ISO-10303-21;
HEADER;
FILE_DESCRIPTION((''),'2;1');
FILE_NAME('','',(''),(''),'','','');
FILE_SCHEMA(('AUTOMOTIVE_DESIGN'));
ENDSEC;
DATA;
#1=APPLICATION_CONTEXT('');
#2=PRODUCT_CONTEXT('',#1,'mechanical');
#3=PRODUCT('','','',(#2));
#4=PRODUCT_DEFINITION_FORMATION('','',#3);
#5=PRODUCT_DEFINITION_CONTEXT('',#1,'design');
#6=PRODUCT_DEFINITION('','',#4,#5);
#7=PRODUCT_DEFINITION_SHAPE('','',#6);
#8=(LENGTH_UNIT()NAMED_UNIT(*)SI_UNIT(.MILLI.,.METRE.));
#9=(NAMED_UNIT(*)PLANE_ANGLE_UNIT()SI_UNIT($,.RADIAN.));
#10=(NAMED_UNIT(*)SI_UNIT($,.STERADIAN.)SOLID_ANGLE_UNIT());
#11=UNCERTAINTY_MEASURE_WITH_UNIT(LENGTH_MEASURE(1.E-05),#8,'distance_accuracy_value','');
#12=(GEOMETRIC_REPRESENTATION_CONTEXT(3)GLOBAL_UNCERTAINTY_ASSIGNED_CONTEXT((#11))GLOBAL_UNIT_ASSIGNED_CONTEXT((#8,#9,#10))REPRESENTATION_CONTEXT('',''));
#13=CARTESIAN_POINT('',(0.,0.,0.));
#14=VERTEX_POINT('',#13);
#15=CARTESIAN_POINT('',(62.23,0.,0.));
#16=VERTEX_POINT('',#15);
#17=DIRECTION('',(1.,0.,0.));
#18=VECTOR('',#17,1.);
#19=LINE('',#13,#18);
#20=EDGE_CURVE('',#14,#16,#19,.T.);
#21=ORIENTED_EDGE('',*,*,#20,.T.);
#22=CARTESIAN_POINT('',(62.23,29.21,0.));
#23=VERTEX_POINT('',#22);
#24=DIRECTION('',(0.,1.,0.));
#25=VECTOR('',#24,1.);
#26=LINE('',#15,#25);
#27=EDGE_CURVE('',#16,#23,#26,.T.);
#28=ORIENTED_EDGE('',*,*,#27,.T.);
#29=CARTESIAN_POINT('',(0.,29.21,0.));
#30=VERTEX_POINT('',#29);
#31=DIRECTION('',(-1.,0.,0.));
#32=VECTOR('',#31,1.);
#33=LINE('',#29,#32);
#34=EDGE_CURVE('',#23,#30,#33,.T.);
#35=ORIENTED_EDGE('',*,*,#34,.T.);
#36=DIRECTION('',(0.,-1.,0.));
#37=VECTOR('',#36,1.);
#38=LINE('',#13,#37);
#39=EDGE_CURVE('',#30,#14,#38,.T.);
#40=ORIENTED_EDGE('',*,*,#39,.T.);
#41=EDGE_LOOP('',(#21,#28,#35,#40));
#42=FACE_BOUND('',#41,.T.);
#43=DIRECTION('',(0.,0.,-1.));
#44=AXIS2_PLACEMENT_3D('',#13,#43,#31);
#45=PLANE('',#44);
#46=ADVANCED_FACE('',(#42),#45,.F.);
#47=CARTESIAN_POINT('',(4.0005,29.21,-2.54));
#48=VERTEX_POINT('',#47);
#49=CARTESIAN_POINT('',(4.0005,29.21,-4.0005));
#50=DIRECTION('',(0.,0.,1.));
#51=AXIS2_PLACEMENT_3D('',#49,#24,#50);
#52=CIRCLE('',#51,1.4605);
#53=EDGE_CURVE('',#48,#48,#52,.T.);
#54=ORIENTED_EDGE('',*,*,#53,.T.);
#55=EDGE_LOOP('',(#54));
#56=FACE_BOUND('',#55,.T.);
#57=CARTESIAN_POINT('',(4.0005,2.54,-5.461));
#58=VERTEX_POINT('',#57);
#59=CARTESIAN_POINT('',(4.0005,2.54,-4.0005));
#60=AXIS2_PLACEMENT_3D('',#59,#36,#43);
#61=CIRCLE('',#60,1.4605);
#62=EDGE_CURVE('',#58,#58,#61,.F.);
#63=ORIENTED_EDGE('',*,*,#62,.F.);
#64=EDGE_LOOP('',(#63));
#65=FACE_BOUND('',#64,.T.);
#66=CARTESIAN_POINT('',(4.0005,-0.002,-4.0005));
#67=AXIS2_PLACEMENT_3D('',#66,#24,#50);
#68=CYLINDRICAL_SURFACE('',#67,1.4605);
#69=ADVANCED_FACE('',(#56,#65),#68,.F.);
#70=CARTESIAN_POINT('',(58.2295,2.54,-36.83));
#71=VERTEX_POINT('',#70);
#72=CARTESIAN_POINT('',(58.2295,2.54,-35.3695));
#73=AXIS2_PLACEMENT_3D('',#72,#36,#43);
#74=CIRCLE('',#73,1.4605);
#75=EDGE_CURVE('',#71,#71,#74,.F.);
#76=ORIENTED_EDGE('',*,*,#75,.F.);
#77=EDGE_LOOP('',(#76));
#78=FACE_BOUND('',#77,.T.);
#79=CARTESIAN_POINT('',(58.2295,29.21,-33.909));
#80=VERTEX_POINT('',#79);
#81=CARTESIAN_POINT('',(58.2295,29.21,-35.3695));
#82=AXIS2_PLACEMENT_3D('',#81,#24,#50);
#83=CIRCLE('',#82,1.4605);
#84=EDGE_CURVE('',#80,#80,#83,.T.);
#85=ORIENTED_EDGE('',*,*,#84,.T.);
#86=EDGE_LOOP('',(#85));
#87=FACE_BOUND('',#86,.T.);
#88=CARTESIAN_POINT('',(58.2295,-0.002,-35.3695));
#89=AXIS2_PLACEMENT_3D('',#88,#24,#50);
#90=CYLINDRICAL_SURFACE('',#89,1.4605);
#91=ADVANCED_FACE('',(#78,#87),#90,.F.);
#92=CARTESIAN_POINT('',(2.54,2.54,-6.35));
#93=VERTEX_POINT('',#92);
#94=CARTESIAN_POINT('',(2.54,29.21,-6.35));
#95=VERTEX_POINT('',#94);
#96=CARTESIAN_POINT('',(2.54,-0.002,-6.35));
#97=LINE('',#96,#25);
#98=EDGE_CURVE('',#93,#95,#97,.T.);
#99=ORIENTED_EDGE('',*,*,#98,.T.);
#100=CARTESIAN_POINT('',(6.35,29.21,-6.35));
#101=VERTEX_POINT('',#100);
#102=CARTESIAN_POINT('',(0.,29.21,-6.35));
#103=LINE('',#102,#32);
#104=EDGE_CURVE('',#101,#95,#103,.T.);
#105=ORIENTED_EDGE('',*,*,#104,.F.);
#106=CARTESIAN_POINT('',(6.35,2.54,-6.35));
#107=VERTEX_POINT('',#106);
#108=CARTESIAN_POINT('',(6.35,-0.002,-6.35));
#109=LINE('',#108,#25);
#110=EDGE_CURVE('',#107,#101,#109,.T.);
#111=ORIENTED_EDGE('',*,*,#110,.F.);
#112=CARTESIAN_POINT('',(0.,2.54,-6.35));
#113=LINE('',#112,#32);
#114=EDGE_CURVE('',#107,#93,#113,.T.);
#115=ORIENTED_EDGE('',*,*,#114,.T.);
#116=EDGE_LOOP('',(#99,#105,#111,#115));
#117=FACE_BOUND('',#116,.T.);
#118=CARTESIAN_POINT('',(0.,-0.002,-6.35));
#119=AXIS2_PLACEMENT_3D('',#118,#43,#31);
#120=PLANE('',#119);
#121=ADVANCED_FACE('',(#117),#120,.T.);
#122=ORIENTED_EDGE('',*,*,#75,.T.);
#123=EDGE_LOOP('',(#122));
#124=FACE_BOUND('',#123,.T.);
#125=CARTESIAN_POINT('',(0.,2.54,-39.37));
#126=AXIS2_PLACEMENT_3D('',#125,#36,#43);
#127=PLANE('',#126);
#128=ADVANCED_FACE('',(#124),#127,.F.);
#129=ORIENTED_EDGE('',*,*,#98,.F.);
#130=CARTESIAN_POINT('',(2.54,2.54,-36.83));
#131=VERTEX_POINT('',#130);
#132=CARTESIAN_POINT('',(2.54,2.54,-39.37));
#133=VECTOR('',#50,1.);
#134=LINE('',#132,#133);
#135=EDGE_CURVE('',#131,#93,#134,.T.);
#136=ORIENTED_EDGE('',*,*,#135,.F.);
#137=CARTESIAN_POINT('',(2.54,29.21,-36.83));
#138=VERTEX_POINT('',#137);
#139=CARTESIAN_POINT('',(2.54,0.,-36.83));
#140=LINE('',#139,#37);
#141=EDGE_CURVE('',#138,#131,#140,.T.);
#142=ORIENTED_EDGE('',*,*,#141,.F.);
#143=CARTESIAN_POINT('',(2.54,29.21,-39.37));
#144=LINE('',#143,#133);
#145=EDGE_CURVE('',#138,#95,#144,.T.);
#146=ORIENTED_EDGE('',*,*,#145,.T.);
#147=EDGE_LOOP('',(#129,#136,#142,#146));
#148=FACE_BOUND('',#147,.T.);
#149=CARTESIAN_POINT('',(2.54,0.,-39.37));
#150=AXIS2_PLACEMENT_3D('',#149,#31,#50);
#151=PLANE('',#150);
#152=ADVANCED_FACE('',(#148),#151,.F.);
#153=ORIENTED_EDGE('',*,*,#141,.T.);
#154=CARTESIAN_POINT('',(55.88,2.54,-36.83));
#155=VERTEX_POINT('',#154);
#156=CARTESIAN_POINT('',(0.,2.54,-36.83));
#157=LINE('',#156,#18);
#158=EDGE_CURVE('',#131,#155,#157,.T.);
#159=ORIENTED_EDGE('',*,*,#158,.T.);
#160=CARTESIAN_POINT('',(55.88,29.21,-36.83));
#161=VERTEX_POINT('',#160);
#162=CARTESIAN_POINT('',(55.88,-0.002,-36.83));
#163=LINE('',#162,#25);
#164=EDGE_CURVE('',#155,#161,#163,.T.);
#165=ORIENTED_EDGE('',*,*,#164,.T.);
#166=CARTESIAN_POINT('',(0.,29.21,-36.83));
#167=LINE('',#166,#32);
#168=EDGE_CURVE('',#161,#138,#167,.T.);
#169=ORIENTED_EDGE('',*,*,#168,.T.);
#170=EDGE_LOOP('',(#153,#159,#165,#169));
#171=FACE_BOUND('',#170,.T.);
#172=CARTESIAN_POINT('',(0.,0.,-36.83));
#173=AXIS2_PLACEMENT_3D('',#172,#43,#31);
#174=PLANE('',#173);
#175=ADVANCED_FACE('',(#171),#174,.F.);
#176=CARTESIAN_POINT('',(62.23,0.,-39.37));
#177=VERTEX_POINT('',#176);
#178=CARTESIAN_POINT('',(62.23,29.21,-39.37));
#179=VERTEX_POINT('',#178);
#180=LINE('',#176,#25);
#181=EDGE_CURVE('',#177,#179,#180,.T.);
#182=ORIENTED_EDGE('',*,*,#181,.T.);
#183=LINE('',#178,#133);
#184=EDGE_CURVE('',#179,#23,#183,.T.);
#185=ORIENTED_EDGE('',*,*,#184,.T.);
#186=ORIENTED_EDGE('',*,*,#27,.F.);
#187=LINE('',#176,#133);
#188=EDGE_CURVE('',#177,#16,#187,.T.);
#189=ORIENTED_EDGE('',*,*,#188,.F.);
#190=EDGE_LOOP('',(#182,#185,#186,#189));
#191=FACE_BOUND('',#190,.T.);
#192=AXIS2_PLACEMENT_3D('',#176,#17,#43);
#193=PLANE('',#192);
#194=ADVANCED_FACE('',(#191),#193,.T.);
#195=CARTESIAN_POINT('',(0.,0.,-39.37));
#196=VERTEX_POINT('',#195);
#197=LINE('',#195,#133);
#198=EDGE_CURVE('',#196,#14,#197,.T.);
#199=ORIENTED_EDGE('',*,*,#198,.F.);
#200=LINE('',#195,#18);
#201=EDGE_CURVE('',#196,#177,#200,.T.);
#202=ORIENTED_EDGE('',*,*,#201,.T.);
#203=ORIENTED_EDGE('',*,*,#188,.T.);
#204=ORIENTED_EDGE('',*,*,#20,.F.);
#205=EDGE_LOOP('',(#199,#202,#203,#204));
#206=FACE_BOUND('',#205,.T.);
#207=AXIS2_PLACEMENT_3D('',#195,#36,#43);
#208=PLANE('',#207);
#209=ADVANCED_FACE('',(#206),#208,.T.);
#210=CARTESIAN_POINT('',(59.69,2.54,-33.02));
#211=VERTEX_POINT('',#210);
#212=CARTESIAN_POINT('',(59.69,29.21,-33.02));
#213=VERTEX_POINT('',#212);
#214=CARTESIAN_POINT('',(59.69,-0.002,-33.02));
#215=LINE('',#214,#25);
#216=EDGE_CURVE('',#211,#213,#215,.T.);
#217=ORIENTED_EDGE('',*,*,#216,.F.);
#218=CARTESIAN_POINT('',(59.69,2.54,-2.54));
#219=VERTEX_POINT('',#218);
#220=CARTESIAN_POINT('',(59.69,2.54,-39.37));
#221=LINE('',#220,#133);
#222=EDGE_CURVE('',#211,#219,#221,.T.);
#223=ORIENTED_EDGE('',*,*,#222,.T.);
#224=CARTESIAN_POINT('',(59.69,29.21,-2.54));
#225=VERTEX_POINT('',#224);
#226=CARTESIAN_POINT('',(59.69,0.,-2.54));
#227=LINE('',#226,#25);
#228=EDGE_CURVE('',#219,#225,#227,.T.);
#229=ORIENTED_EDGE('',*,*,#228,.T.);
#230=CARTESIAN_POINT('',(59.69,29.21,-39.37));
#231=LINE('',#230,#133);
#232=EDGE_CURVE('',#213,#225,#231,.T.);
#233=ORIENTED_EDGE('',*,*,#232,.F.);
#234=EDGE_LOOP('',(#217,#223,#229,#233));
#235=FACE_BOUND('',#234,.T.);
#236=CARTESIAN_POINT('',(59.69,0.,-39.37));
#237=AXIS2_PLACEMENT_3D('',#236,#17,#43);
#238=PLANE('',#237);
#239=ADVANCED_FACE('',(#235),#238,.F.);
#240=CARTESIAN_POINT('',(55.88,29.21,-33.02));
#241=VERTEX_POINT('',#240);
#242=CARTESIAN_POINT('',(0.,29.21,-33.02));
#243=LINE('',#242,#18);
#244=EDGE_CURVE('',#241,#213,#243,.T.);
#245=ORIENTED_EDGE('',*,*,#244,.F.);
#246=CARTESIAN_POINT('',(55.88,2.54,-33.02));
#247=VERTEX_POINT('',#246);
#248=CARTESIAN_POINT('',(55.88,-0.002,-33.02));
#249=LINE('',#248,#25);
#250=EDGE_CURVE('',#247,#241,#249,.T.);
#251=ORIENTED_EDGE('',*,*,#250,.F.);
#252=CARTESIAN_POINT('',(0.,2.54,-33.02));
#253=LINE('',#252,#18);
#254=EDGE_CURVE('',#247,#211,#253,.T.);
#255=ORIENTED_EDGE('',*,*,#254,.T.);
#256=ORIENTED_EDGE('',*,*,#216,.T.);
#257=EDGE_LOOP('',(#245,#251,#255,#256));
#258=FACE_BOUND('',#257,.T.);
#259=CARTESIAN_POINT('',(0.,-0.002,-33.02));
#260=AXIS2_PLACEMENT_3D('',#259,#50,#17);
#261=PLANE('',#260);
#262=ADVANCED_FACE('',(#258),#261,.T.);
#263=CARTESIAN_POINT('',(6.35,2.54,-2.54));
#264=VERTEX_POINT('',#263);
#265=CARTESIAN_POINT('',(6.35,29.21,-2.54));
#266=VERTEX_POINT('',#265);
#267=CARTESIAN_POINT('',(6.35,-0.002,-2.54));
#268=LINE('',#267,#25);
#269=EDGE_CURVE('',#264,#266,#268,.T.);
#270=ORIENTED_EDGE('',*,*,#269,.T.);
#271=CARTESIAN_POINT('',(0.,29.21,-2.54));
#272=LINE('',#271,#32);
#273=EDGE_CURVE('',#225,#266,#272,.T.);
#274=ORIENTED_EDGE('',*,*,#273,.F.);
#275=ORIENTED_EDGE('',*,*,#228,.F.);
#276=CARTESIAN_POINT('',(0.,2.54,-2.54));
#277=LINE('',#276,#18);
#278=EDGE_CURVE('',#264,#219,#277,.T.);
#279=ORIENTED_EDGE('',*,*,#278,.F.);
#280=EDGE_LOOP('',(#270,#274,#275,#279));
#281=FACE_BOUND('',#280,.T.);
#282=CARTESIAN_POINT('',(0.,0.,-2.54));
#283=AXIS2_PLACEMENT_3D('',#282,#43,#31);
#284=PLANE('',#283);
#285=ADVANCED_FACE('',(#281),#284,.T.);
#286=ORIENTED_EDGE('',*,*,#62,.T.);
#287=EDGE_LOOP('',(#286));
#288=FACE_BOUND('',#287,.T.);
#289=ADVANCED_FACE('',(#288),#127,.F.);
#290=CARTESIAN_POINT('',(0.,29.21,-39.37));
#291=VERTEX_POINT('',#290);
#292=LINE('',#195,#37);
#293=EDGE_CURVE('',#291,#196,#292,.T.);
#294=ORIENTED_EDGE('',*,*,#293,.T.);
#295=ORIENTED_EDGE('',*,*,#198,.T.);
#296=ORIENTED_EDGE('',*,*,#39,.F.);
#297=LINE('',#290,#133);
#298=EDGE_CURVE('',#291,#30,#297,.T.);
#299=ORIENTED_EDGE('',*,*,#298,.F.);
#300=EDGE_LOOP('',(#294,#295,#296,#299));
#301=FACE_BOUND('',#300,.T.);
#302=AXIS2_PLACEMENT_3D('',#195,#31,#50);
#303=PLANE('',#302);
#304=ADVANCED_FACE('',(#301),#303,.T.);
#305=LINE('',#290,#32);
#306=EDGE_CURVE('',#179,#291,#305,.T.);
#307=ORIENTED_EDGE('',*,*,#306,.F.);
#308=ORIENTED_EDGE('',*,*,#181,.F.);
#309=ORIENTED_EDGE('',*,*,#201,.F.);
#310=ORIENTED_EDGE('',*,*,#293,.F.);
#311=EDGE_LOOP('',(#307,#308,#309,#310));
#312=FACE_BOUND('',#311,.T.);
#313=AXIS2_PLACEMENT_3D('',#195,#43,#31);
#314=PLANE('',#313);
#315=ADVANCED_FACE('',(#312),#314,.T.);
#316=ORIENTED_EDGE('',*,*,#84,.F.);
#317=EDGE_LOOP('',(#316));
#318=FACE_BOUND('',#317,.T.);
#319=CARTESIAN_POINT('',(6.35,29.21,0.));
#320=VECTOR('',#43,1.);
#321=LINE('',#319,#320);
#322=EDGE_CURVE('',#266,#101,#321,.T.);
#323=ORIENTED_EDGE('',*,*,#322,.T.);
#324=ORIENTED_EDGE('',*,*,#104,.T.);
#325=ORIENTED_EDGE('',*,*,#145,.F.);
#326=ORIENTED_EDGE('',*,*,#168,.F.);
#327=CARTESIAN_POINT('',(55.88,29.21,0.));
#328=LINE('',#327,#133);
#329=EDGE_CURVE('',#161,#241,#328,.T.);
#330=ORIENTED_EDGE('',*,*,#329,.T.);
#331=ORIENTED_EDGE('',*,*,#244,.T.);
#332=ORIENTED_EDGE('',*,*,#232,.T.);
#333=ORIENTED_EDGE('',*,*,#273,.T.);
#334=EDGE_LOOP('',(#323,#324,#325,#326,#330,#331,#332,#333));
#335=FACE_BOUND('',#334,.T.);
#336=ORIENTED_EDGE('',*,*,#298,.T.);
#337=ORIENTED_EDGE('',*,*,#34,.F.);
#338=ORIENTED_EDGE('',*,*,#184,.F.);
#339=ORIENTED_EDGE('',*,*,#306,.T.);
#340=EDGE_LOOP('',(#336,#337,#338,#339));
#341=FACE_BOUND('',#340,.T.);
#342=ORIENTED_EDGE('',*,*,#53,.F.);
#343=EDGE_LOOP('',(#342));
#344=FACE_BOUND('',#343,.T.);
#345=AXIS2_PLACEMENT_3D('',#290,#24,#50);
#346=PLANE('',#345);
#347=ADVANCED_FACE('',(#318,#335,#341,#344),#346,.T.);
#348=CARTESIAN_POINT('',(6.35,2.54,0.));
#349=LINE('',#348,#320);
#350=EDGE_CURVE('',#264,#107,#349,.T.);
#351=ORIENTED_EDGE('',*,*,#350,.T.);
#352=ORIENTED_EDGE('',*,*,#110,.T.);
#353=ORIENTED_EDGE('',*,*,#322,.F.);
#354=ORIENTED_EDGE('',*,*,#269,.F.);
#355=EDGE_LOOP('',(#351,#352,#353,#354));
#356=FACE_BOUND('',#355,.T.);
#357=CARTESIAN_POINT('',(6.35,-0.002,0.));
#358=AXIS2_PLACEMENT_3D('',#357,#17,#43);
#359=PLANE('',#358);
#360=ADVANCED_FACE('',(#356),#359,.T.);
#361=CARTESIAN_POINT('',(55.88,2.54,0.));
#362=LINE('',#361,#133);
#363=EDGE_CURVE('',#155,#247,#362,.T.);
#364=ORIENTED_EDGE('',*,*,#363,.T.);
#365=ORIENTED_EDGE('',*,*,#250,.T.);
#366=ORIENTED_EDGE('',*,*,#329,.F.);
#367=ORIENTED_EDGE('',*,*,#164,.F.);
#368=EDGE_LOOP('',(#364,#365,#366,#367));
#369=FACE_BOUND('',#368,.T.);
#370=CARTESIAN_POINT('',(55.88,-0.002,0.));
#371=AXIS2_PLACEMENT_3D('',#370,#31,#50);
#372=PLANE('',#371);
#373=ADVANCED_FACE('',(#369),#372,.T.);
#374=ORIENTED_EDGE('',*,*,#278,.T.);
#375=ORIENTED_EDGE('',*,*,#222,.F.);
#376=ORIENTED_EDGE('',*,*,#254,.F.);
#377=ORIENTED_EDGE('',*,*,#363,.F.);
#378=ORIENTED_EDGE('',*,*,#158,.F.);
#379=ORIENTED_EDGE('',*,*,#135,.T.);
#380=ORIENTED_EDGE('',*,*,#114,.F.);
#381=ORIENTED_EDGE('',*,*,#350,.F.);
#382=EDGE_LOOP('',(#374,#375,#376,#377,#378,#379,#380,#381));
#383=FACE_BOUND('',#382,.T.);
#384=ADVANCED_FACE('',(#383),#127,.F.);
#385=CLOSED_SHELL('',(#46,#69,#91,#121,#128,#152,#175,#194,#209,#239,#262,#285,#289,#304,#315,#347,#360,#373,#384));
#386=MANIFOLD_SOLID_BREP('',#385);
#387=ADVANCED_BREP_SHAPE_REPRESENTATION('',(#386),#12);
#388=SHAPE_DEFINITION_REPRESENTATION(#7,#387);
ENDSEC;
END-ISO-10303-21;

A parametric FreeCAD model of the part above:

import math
import FreeCAD as App
import Part
import Sketcher
Q = App.Units.Quantity


def faces_at(feature, points):
    """Names of the faces that lie closest to the given points."""
    faces = feature.Shape.Faces
    near = lambda p: min(range(len(faces)), key=lambda i: faces[i].distToShape(Part.Vertex(*p))[0])
    return sorted({f"Face{near(p) + 1}" for p in points})


def add_polygon(sketch, points):
    """Adds a closed chain of lines whose ends are joined by coincident constraints."""
    first, n = sketch.GeometryCount, len(points)
    for a, b in zip(points, points[1:] + points[:1]):
        sketch.addGeometry(Part.LineSegment(App.Vector(*a, 0), App.Vector(*b, 0)), False)
    for i in range(n):
        sketch.addConstraint(Sketcher.Constraint("Coincident", first + i, 2, first + (i + 1) % n, 1))

doc = App.newDocument("Part")
params = doc.addObject("Spreadsheet::Sheet", "Params")
for row, (alias, value) in enumerate([
    ("sketch1_width", "2.45 in"),
    ("sketch1_height", "1.15 in"),
    ("pad1_length", "1.55 in"),
    ("thickness_wall", "0.1 in"),
    ("sketch4_width", "0.15 in"),
    ("sketch5_width", "0.15 in"),
], start=1):
    params.set(f"A{row}", alias)
    params.set(f"B{row}", "=" + value)
    params.setAlias(f"B{row}", alias)

body = doc.addObject("PartDesign::Body", "Body")

# Sketch on XY plane
sketch1 = body.newObject("Sketcher::SketchObject", "Sketch")
sketch1.AttachmentSupport = (doc.getObject("XY_Plane"), [""])
sketch1.MapMode = "FlatFace"
add_polygon(sketch1, [(0, 29), (0, 0), (62, 0), (62, 29)])  # lines 0-3
sketch1.addConstraint([
    Sketcher.Constraint("Vertical", 0),
    Sketcher.Constraint("Horizontal", 1),
    Sketcher.Constraint("Vertical", 2),
    Sketcher.Constraint("Horizontal", 3),
    Sketcher.Constraint("Coincident", 0, 2, -1, 1),
    Sketcher.Constraint("DistanceX", 1, 1, 1, 2, Q("2.45 in")),
    Sketcher.Constraint("DistanceY", 0, 2, 0, 1, Q("1.15 in")),
])
sketch1.setExpression("Constraints[9]", "Params.sketch1_width")
sketch1.setExpression("Constraints[10]", "Params.sketch1_height")
pad1 = body.newObject("PartDesign::Pad", "Pad")
pad1.Profile = sketch1
pad1.setExpression("Length", "Params.pad1_length")
pad1.Reversed = True
doc.recompute()

thickness = body.newObject("PartDesign::Thickness", "Thickness")
thickness.Base = (pad1, faces_at(pad1, [(31.115, 29.21, -19.685)]))
thickness.setExpression("Value", "Params.thickness_wall")
thickness.Reversed = True
thickness.Join = "Intersection"

# Sketch on XZ plane
sketch2 = body.newObject("Sketcher::SketchObject", "Sketch001")
sketch2.AttachmentSupport = (doc.getObject("XZ_Plane"), [""])
sketch2.MapMode = "FlatFace"
sketch2.AttachmentOffset = App.Placement(App.Vector(0, 0, -1.15 * 25.4), App.Rotation())
sketch2.addGeometry([
    Part.LineSegment(App.Vector(2.5, -2.5, 0), App.Vector(4, -2.5, 0)),
    Part.ArcOfCircle(Part.Circle(App.Vector(4, -4, 0), App.Vector(0, 0, 1), 1.5), math.radians(90), math.radians(180)),
    Part.LineSegment(App.Vector(2.5, -4, 0), App.Vector(2.5, -2.5, 0)),
], False)
sketch2.addConstraint([
    Sketcher.Constraint("Tangent", 0, 2, 1, 1),
    Sketcher.Constraint("Tangent", 1, 2, 2, 1),
    Sketcher.Constraint("Coincident", 2, 2, 0, 1),
    Sketcher.Constraint("Horizontal", 0),
    Sketcher.Constraint("Vertical", 2),
    Sketcher.Constraint("DistanceY", 0, 2, -1, 1, Q("0.1 in")),
    Sketcher.Constraint("DistanceX", -1, 1, 1, 2, Q("0.1 in")),
    Sketcher.Constraint("Radius", 1, Q("0.0575 in")),
])
pad2 = body.newObject("PartDesign::Pad", "Pad001")
pad2.Profile = sketch2
pad2.Type = "UpToFirst"

# Sketch on XZ plane
sketch3 = body.newObject("Sketcher::SketchObject", "Sketch002")
sketch3.AttachmentSupport = (doc.getObject("XZ_Plane"), [""])
sketch3.MapMode = "FlatFace"
sketch3.AttachmentOffset = App.Placement(App.Vector(0, 0, -1.15 * 25.4), App.Rotation())
sketch3.addGeometry([
    Part.ArcOfCircle(Part.Circle(App.Vector(58.2, -35.4, 0), App.Vector(0, 0, 1), 1.5), math.radians(-90), math.radians(0)),
    Part.LineSegment(App.Vector(59.7, -35.4, 0), App.Vector(59.7, -36.8, 0)),
    Part.LineSegment(App.Vector(59.7, -36.8, 0), App.Vector(58.2, -36.8, 0)),
], False)
sketch3.addConstraint([
    Sketcher.Constraint("Tangent", 0, 2, 1, 1),
    Sketcher.Constraint("Coincident", 1, 2, 2, 1),
    Sketcher.Constraint("Tangent", 2, 2, 0, 1),
    Sketcher.Constraint("Vertical", 1),
    Sketcher.Constraint("Horizontal", 2),
    Sketcher.Constraint("Radius", 0, Q("0.0575 in")),
    Sketcher.Constraint("DistanceX", -1, 1, 0, 2, Q("2.35 in")),
    Sketcher.Constraint("DistanceY", 1, 2, -1, 1, Q("1.45 in")),
])
pad3 = body.newObject("PartDesign::Pad", "Pad002")
pad3.Profile = sketch3
pad3.Type = "UpToFirst"

# Sketch on XZ plane
sketch4 = body.newObject("Sketcher::SketchObject", "Sketch003")
sketch4.AttachmentSupport = (doc.getObject("XZ_Plane"), [""])
sketch4.MapMode = "FlatFace"
sketch4.AttachmentOffset = App.Placement(App.Vector(0, 0, -1.15 * 25.4), App.Rotation())
sketch4.addGeometry([
    Part.LineSegment(App.Vector(55.9, -33, 0), App.Vector(59.7, -33, 0)),  # 0
    Part.LineSegment(App.Vector(59.7, -33, 0), App.Vector(59.7, -35.4, 0)),  # 1
    Part.ArcOfCircle(Part.Circle(App.Vector(58.2, -35.4, 0), App.Vector(0, 0, 1), 1.5), math.radians(0), math.radians(270)),  # 2
    Part.LineSegment(App.Vector(58.2, -36.8, 0), App.Vector(55.9, -36.8, 0)),  # 3
    Part.LineSegment(App.Vector(55.9, -36.8, 0), App.Vector(55.9, -33, 0)),  # 4
], False)
sketch4.addConstraint([
    Sketcher.Constraint("Coincident", 0, 2, 1, 1),
    Sketcher.Constraint("Tangent", 1, 2, 2, 1),
    Sketcher.Constraint("Tangent", 2, 2, 3, 1),
    Sketcher.Constraint("Coincident", 3, 2, 4, 1),
    Sketcher.Constraint("Coincident", 4, 2, 0, 1),
    Sketcher.Constraint("Horizontal", 0),
    Sketcher.Constraint("Vertical", 1),
    Sketcher.Constraint("Horizontal", 3),
    Sketcher.Constraint("Vertical", 4),
    Sketcher.Constraint("Equal", 3, 1),
    Sketcher.Constraint("DistanceX", 0, 1, 0, 2, Q("0.15 in")),
    Sketcher.Constraint("DistanceY", 0, 2, -1, 1, Q("1.3 in")),
    Sketcher.Constraint("DistanceX", -1, 1, 3, 2, Q("2.2 in")),
    Sketcher.Constraint("Radius", 2, Q("0.0575 in")),
])
sketch4.setExpression("Constraints[10]", "Params.sketch4_width")
pad4 = body.newObject("PartDesign::Pad", "Pad003")
pad4.Profile = sketch4
pad4.Type = "UpToFirst"

# Sketch on XZ plane
sketch5 = body.newObject("Sketcher::SketchObject", "Sketch004")
sketch5.AttachmentSupport = (doc.getObject("XZ_Plane"), [""])
sketch5.MapMode = "FlatFace"
sketch5.AttachmentOffset = App.Placement(App.Vector(0, 0, -1.15 * 25.4), App.Rotation())
sketch5.addGeometry([
    Part.LineSegment(App.Vector(4, -2.5, 0), App.Vector(6.3, -2.5, 0)),  # 0
    Part.LineSegment(App.Vector(6.3, -2.5, 0), App.Vector(6.3, -6.3, 0)),  # 1
    Part.LineSegment(App.Vector(6.3, -6.3, 0), App.Vector(2.5, -6.3, 0)),  # 2
    Part.LineSegment(App.Vector(2.5, -6.3, 0), App.Vector(2.5, -4, 0)),  # 3
    Part.ArcOfCircle(Part.Circle(App.Vector(4, -4, 0), App.Vector(0, 0, 1), 1.5), math.radians(180), math.radians(360)),  # 4
    Part.ArcOfCircle(Part.Circle(App.Vector(4, -4, 0), App.Vector(0, 0, 1), 1.5), math.radians(0), math.radians(90)),  # 5
], False)
sketch5.addConstraint([
    Sketcher.Constraint("Coincident", 0, 2, 1, 1),
    Sketcher.Constraint("Coincident", 1, 2, 2, 1),
    Sketcher.Constraint("Coincident", 2, 2, 3, 1),
    Sketcher.Constraint("Tangent", 3, 2, 4, 1),
    Sketcher.Constraint("Tangent", 4, 2, 5, 1),
    Sketcher.Constraint("Tangent", 5, 2, 0, 1),
    Sketcher.Constraint("Horizontal", 0),
    Sketcher.Constraint("Vertical", 1),
    Sketcher.Constraint("Horizontal", 2),
    Sketcher.Constraint("Vertical", 3),
    Sketcher.Constraint("Equal", 4, 5),
    Sketcher.Constraint("Horizontal", 3, 2, 4, 2),
    Sketcher.Constraint("Equal", 2, 1),
    Sketcher.Constraint("DistanceX", 2, 2, 2, 1, Q("0.15 in")),
    Sketcher.Constraint("DistanceY", 0, 2, -1, 1, Q("0.1 in")),
    Sketcher.Constraint("DistanceX", -1, 1, 2, 2, Q("0.1 in")),
    Sketcher.Constraint("Radius", 4, Q("0.0575 in")),
])
sketch5.setExpression("Constraints[13]", "Params.sketch5_width")
pad5 = body.newObject("PartDesign::Pad", "Pad004")
pad5.Profile = sketch5
pad5.Type = "UpToFirst"

doc.recompute()
